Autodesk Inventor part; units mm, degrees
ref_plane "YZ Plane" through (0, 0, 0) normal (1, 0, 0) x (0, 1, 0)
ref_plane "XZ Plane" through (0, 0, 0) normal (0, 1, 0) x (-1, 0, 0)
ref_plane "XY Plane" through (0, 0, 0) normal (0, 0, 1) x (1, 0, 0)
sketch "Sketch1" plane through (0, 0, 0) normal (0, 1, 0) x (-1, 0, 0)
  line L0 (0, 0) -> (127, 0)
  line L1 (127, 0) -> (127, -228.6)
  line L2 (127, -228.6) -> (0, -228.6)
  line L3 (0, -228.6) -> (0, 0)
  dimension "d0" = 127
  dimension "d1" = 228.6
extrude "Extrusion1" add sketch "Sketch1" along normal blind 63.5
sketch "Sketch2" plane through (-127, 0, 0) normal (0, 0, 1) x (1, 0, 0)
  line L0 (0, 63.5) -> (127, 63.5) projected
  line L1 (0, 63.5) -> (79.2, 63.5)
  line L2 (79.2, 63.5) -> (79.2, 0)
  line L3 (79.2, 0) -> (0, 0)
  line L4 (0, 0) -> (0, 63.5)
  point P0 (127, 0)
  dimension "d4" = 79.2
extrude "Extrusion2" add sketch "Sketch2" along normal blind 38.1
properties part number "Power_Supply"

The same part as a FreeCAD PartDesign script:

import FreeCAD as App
import Part
import Sketcher
Q = App.Units.Quantity

doc = App.newDocument("Part")
body = doc.addObject("PartDesign::Body", "Body")

# Sketch on XZ plane
sketch1 = body.newObject("Sketcher::SketchObject", "Sketch")
sketch1.AttachmentSupport = (doc.getObject("XZ_Plane"), [""])
sketch1.MapMode = "FlatFace"
sketch1.addGeometry([
    Part.LineSegment(App.Vector(-127, 0, 0), App.Vector(0, 0, 0)),
    Part.LineSegment(App.Vector(0, 0, 0), App.Vector(0, -229, 0)),
    Part.LineSegment(App.Vector(0, -229, 0), App.Vector(-127, -229, 0)),
    Part.LineSegment(App.Vector(-127, -229, 0), App.Vector(-127, 0, 0)),
], False)
sketch1.addConstraint([
    Sketcher.Constraint("Coincident", 0, 2, 1, 1),
    Sketcher.Constraint("Coincident", 1, 2, 2, 1),
    Sketcher.Constraint("Coincident", 2, 2, 3, 1),
    Sketcher.Constraint("Coincident", 3, 2, 0, 1),
    Sketcher.Constraint("Horizontal", 0),
    Sketcher.Constraint("Vertical", 1),
    Sketcher.Constraint("Horizontal", 2),
    Sketcher.Constraint("Vertical", 3),
    Sketcher.Constraint("Coincident", 0, 2, -1, 1),
    Sketcher.Constraint("DistanceX", 0, 1, 0, 2, Q("5 in")),
    Sketcher.Constraint("DistanceY", 1, 2, 1, 1, Q("9 in")),
])
pad1 = body.newObject("PartDesign::Pad", "Pad")
pad1.Profile = sketch1
pad1.Length = Q("2.5 in")
pad1.Reversed = True

# Sketch on XY plane
sketch2 = body.newObject("Sketcher::SketchObject", "Sketch001")
sketch2.AttachmentSupport = (doc.getObject("XY_Plane"), [""])
sketch2.MapMode = "FlatFace"
sketch2.addGeometry([
    Part.LineSegment(App.Vector(-48, 64, 0), App.Vector(-127, 64, 0)),
    Part.LineSegment(App.Vector(-127, 64, 0), App.Vector(-127, 0, 0)),
    Part.LineSegment(App.Vector(-127, 0, 0), App.Vector(-48, 0, 0)),
    Part.LineSegment(App.Vector(-48, 0, 0), App.Vector(-48, 64, 0)),
], False)
sketch2.addConstraint([
    Sketcher.Constraint("Coincident", 0, 2, 1, 1),
    Sketcher.Constraint("Coincident", 1, 2, 2, 1),
    Sketcher.Constraint("Coincident", 2, 2, 3, 1),
    Sketcher.Constraint("Coincident", 3, 2, 0, 1),
    Sketcher.Constraint("Horizontal", 0),
    Sketcher.Constraint("Vertical", 1),
    Sketcher.Constraint("Horizontal", 2),
    Sketcher.Constraint("Vertical", 3),
    Sketcher.Constraint("PointOnObject", 1, 2, -1),
    Sketcher.Constraint("DistanceX", 0, 2, 0, 1, Q("3.1181 in")),
    Sketcher.Constraint("DistanceY", 1, 2, 1, 1, Q("2.5 in")),
    Sketcher.Constraint("DistanceX", 0, 2, -1, 1, Q("5 in")),
])
pad2 = body.newObject("PartDesign::Pad", "Pad001")
pad2.Profile = sketch2
pad2.Length = Q("1.5 in")

doc.recompute()
